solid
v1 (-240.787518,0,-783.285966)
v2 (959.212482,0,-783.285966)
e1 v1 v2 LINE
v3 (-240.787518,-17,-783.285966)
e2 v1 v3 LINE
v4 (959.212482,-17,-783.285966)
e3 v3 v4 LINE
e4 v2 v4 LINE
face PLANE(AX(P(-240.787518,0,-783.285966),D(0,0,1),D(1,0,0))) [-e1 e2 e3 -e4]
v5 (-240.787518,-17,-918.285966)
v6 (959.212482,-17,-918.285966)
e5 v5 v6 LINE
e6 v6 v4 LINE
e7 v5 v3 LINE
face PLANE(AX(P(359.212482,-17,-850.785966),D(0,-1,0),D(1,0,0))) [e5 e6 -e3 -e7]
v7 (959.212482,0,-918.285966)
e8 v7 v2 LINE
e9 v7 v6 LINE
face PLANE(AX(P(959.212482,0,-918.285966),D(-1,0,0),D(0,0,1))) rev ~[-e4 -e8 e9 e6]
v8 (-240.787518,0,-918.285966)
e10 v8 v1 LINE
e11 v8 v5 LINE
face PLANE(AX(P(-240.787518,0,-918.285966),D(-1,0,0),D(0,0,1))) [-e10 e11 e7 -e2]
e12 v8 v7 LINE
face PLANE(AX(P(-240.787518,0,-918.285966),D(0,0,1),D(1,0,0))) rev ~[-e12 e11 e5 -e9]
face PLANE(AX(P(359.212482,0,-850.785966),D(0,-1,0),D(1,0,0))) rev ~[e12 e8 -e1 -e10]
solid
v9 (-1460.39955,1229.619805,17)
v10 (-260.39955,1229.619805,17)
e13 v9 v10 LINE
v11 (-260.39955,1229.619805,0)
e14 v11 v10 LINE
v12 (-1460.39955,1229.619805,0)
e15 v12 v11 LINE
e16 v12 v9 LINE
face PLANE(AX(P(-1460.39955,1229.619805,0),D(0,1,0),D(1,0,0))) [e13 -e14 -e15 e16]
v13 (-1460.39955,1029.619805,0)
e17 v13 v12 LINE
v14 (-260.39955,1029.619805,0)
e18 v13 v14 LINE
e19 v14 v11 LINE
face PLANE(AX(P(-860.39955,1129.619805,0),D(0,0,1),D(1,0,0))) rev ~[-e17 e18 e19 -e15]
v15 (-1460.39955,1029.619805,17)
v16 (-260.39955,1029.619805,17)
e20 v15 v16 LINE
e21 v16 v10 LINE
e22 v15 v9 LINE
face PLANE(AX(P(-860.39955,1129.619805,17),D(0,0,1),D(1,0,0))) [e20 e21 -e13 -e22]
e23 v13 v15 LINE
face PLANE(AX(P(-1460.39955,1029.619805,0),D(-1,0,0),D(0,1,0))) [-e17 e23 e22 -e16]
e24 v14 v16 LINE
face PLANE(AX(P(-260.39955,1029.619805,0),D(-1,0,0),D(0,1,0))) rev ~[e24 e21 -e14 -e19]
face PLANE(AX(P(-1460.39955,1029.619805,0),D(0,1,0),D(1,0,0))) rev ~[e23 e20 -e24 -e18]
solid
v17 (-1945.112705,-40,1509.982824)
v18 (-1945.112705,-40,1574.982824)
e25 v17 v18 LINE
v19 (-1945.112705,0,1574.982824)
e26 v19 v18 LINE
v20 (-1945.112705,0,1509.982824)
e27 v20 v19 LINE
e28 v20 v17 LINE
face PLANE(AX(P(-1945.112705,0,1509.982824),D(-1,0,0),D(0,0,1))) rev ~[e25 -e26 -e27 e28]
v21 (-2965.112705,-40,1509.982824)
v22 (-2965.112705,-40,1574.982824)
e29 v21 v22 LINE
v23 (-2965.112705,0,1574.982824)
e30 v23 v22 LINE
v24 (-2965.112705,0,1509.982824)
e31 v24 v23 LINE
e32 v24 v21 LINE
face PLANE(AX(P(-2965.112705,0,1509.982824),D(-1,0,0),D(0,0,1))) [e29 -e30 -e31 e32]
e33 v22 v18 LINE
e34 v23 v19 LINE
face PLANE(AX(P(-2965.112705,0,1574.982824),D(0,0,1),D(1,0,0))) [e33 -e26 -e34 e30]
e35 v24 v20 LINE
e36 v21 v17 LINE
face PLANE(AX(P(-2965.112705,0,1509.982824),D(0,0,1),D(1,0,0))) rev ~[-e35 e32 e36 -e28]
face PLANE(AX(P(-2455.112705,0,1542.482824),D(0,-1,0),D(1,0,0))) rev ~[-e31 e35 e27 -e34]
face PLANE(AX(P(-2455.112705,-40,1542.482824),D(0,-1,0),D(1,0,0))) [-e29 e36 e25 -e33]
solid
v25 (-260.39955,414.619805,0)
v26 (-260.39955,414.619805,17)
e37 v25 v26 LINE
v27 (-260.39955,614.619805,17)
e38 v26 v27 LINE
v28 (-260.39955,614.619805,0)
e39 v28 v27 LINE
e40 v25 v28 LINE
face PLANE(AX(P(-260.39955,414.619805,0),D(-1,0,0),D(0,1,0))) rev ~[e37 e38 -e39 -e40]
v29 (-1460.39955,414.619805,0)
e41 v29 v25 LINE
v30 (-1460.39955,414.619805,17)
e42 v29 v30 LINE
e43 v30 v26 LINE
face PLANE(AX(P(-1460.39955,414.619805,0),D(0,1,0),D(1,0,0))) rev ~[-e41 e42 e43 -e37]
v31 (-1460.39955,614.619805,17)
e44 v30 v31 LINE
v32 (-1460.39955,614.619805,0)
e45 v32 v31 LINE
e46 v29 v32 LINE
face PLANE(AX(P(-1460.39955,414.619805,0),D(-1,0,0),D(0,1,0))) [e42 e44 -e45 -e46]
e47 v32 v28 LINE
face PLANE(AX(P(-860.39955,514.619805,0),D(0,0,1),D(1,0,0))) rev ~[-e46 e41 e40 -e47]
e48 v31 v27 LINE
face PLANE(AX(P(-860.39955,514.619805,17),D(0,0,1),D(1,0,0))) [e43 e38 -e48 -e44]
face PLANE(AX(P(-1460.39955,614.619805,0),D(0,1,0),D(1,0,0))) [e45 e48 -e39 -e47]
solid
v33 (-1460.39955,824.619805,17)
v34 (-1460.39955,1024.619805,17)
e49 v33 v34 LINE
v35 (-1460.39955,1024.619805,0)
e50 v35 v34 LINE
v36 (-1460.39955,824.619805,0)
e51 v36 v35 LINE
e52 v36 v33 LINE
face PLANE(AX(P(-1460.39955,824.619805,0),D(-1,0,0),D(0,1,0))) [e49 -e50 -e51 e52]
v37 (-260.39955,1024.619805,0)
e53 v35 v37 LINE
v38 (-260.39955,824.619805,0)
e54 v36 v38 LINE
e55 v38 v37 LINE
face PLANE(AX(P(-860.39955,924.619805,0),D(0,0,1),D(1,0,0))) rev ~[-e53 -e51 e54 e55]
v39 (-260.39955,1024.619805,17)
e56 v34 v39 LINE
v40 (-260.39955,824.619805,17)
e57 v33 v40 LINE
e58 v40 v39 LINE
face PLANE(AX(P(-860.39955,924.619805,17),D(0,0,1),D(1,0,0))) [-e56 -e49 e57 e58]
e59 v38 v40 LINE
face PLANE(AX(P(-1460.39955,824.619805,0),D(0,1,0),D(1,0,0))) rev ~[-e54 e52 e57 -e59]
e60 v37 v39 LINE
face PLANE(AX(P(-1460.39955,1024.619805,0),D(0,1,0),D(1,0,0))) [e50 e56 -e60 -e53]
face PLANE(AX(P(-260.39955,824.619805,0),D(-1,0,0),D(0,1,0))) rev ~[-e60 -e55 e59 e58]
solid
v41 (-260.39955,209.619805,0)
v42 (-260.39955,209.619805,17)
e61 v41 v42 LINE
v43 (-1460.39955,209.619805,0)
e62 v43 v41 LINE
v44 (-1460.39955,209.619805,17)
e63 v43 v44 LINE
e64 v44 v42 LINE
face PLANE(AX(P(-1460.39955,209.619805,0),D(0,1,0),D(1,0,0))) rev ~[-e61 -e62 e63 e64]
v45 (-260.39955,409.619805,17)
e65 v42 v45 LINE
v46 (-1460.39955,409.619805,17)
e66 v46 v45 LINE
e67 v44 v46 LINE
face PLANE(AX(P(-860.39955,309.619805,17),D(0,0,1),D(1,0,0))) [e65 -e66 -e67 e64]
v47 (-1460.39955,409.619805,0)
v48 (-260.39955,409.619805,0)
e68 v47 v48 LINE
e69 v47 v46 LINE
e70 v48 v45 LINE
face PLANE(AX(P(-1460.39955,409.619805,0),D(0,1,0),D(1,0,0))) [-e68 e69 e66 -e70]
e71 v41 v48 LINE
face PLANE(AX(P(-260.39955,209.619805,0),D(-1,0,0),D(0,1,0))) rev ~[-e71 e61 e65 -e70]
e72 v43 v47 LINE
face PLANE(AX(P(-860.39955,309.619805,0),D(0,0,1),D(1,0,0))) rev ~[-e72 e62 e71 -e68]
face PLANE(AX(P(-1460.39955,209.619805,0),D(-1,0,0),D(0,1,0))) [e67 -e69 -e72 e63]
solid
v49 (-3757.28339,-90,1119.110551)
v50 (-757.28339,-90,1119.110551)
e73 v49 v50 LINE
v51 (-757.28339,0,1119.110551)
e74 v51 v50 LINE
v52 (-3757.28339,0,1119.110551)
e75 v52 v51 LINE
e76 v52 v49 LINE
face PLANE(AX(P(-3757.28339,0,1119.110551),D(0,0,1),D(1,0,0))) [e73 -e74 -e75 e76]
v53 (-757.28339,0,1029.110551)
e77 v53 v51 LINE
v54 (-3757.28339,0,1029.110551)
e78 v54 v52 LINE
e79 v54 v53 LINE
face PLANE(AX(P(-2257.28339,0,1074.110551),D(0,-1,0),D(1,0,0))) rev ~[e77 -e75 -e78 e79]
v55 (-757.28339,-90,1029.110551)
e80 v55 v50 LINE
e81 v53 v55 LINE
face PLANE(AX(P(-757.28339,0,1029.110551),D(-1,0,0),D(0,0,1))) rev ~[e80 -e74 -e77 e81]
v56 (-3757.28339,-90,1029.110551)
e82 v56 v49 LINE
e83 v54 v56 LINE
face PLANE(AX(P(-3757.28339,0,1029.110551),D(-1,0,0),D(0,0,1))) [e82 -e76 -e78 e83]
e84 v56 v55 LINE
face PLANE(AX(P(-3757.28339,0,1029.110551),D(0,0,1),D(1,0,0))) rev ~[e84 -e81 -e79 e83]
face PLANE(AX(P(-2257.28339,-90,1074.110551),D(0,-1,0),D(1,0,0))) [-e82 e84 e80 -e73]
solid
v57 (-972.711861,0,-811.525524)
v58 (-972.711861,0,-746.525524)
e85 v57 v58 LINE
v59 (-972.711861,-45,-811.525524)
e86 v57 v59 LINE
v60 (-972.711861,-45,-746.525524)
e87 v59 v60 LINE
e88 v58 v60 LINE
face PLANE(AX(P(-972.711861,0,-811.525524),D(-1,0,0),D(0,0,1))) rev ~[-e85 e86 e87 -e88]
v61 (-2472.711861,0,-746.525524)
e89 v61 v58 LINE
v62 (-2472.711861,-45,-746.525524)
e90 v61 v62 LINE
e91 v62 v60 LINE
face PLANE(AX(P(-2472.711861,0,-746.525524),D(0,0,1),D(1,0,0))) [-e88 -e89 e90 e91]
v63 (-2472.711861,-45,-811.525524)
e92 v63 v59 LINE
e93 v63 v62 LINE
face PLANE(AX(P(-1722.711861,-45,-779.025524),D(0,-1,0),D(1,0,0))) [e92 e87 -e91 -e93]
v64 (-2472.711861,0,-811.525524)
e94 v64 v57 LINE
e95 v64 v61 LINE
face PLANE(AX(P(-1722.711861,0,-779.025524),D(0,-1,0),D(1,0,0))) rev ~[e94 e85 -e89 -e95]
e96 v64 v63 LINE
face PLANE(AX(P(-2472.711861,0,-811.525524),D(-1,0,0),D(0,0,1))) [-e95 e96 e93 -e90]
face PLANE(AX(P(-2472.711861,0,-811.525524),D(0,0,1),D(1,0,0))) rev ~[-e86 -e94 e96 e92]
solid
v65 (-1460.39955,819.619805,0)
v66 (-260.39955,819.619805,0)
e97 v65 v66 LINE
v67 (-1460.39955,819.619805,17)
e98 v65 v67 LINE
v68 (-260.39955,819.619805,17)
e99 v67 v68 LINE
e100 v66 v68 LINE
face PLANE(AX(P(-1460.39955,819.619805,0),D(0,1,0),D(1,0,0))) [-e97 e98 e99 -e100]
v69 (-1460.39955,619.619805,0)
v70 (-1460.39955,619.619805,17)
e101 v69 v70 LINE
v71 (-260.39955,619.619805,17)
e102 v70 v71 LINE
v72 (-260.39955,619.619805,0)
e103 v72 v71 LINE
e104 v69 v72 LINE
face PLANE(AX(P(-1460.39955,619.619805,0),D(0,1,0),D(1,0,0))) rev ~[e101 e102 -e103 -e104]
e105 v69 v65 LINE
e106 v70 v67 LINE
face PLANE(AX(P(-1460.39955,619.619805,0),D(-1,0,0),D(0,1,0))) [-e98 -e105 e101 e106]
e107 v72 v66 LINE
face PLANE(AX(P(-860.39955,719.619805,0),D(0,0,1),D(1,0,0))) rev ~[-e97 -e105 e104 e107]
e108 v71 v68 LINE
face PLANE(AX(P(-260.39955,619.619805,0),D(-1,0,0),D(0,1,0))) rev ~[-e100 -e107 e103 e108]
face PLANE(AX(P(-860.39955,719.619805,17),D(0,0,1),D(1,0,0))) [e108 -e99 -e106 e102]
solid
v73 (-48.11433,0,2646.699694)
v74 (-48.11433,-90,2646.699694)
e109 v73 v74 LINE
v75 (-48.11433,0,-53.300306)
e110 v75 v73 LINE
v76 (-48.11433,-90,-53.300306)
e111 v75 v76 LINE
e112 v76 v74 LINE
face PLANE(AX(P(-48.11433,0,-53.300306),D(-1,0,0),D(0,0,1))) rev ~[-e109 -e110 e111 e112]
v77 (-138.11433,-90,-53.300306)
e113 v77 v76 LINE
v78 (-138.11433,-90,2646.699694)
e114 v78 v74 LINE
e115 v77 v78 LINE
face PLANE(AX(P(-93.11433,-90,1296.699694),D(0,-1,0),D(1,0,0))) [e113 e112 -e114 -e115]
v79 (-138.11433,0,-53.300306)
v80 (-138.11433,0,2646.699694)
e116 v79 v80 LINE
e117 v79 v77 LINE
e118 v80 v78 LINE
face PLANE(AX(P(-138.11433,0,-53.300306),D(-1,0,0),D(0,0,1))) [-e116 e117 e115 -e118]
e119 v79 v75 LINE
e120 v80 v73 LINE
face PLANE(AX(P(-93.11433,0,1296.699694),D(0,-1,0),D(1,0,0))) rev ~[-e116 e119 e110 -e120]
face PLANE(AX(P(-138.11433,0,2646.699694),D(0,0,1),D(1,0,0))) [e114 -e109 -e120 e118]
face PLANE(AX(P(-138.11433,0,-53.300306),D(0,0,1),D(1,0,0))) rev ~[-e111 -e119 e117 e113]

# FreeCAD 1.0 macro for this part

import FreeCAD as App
import Part
import Sketcher
Q = App.Units.Quantity

doc = App.newDocument("Part")
body = doc.addObject("PartDesign::Body", "Body")

sketch1 = body.newObject("Sketcher::SketchObject", "Sketch")
sketch1.AttachmentSupport = (doc.getObject("XZ_Plane"), [""])
sketch1.MapMode = "FlatFace"
sketch1.addGeometry([
    Part.LineSegment(App.Vector(-138, 2647, 0), App.Vector(-138, -53, 0)),
    Part.LineSegment(App.Vector(-138, -53, 0), App.Vector(-48, -53, 0)),
    Part.LineSegment(App.Vector(-48, -53, 0), App.Vector(-48, 2647, 0)),
    Part.LineSegment(App.Vector(-48, 2647, 0), App.Vector(-138, 2647, 0)),
], False)
sketch1.addConstraint([
    Sketcher.Constraint("Coincident", 0, 2, 1, 1),
    Sketcher.Constraint("Coincident", 1, 2, 2, 1),
    Sketcher.Constraint("Coincident", 2, 2, 3, 1),
    Sketcher.Constraint("Coincident", 3, 2, 0, 1),
    Sketcher.Constraint("Vertical", 0),
    Sketcher.Constraint("Horizontal", 1),
    Sketcher.Constraint("Vertical", 2),
    Sketcher.Constraint("Horizontal", 3),
    Sketcher.Constraint("DistanceX", 1, 1, 1, 2, Q("90 mm")),
    Sketcher.Constraint("DistanceY", 0, 2, 0, 1, Q("2700 mm")),
    Sketcher.Constraint("DistanceX", 0, 2, -1, 1, Q("138.11433 mm")),
    Sketcher.Constraint("DistanceY", 0, 2, -1, 1, Q("53.300306 mm")),
])
pad1 = body.newObject("PartDesign::Pad", "Pad")
pad1.Profile = sketch1
pad1.Length = 90
body2 = doc.addObject("PartDesign::Body", "Body001")

sketch2 = body2.newObject("Sketcher::SketchObject", "Sketch001")
sketch2.AttachmentSupport = (doc.getObject("XZ_Plane001"), [""])
sketch2.MapMode = "FlatFace"
sketch2.addGeometry([
    Part.LineSegment(App.Vector(-3757, 1119, 0), App.Vector(-3757, 1029, 0)),
    Part.LineSegment(App.Vector(-3757, 1029, 0), App.Vector(-757, 1029, 0)),
    Part.LineSegment(App.Vector(-757, 1029, 0), App.Vector(-757, 1119, 0)),
    Part.LineSegment(App.Vector(-757, 1119, 0), App.Vector(-3757, 1119, 0)),
], False)
sketch2.addConstraint([
    Sketcher.Constraint("Coincident", 0, 2, 1, 1),
    Sketcher.Constraint("Coincident", 1, 2, 2, 1),
    Sketcher.Constraint("Coincident", 2, 2, 3, 1),
    Sketcher.Constraint("Coincident", 3, 2, 0, 1),
    Sketcher.Constraint("Vertical", 0),
    Sketcher.Constraint("Horizontal", 1),
    Sketcher.Constraint("Vertical", 2),
    Sketcher.Constraint("Horizontal", 3),
    Sketcher.Constraint("DistanceX", 1, 1, 1, 2, Q("3000 mm")),
    Sketcher.Constraint("DistanceY", 0, 2, 0, 1, Q("90 mm")),
    Sketcher.Constraint("DistanceX", 0, 2, -1, 1, Q("3757.28339 mm")),
    Sketcher.Constraint("DistanceY", -1, 1, 0, 2, Q("1029.110551 mm")),
])
pad2 = body2.newObject("PartDesign::Pad", "Pad001")
pad2.Profile = sketch2
pad2.Length = 90
body3 = doc.addObject("PartDesign::Body", "Body002")

sketch3 = body3.newObject("Sketcher::SketchObject", "Sketch002")
sketch3.AttachmentSupport = (doc.getObject("XZ_Plane002"), [""])
sketch3.MapMode = "FlatFace"
sketch3.addGeometry([
    Part.LineSegment(App.Vector(-2473, -747, 0), App.Vector(-2473, -812, 0)),
    Part.LineSegment(App.Vector(-2473, -812, 0), App.Vector(-973, -812, 0)),
    Part.LineSegment(App.Vector(-973, -812, 0), App.Vector(-973, -747, 0)),
    Part.LineSegment(App.Vector(-973, -747, 0), App.Vector(-2473, -747, 0)),
], False)
sketch3.addConstraint([
    Sketcher.Constraint("Coincident", 0, 2, 1, 1),
    Sketcher.Constraint("Coincident", 1, 2, 2, 1),
    Sketcher.Constraint("Coincident", 2, 2, 3, 1),
    Sketcher.Constraint("Coincident", 3, 2, 0, 1),
    Sketcher.Constraint("Vertical", 0),
    Sketcher.Constraint("Horizontal", 1),
    Sketcher.Constraint("Vertical", 2),
    Sketcher.Constraint("Horizontal", 3),
    Sketcher.Constraint("DistanceX", 1, 1, 1, 2, Q("1500 mm")),
    Sketcher.Constraint("DistanceY", 0, 2, 0, 1, Q("65 mm")),
    Sketcher.Constraint("DistanceX", 0, 2, -1, 1, Q("2472.711861 mm")),
    Sketcher.Constraint("DistanceY", 0, 2, -1, 1, Q("811.525524 mm")),
])
pad3 = body3.newObject("PartDesign::Pad", "Pad002")
pad3.Profile = sketch3
pad3.Length = 45
body4 = doc.addObject("PartDesign::Body", "Body003")

sketch4 = body4.newObject("Sketcher::SketchObject", "Sketch003")
sketch4.AttachmentSupport = (doc.getObject("XZ_Plane003"), [""])
sketch4.MapMode = "FlatFace"
sketch4.addGeometry([
    Part.LineSegment(App.Vector(-241, -783, 0), App.Vector(-241, -918, 0)),
    Part.LineSegment(App.Vector(-241, -918, 0), App.Vector(959, -918, 0)),
    Part.LineSegment(App.Vector(959, -918, 0), App.Vector(959, -783, 0)),
    Part.LineSegment(App.Vector(959, -783, 0), App.Vector(-241, -783, 0)),
], False)
sketch4.addConstraint([
    Sketcher.Constraint("Coincident", 0, 2, 1, 1),
    Sketcher.Constraint("Coincident", 1, 2, 2, 1),
    Sketcher.Constraint("Coincident", 2, 2, 3, 1),
    Sketcher.Constraint("Coincident", 3, 2, 0, 1),
    Sketcher.Constraint("Vertical", 0),
    Sketcher.Constraint("Horizontal", 1),
    Sketcher.Constraint("Vertical", 2),
    Sketcher.Constraint("Horizontal", 3),
    Sketcher.Constraint("DistanceX", 1, 1, 1, 2, Q("1200 mm")),
    Sketcher.Constraint("DistanceY", 0, 2, 0, 1, Q("135 mm")),
    Sketcher.Constraint("DistanceX", 0, 2, -1, 1, Q("240.787518 mm")),
    Sketcher.Constraint("DistanceY", 0, 2, -1, 1, Q("918.285966 mm")),
])
pad4 = body4.newObject("PartDesign::Pad", "Pad003")
pad4.Profile = sketch4
pad4.Length = 17
body5 = doc.addObject("PartDesign::Body", "Body004")

sketch5 = body5.newObject("Sketcher::SketchObject", "Sketch004")
sketch5.AttachmentSupport = (doc.getObject("XZ_Plane004"), [""])
sketch5.MapMode = "FlatFace"
sketch5.addGeometry([
    Part.LineSegment(App.Vector(-2965, 1575, 0), App.Vector(-2965, 1510, 0)),
    Part.LineSegment(App.Vector(-2965, 1510, 0), App.Vector(-1945, 1510, 0)),
    Part.LineSegment(App.Vector(-1945, 1510, 0), App.Vector(-1945, 1575, 0)),
    Part.LineSegment(App.Vector(-1945, 1575, 0), App.Vector(-2965, 1575, 0)),
], False)
sketch5.addConstraint([
    Sketcher.Constraint("Coincident", 0, 2, 1, 1),
    Sketcher.Constraint("Coincident", 1, 2, 2, 1),
    Sketcher.Constraint("Coincident", 2, 2, 3, 1),
    Sketcher.Constraint("Coincident", 3, 2, 0, 1),
    Sketcher.Constraint("Vertical", 0),
    Sketcher.Constraint("Horizontal", 1),
    Sketcher.Constraint("Vertical", 2),
    Sketcher.Constraint("Horizontal", 3),
    Sketcher.Constraint("DistanceX", 1, 1, 1, 2, Q("1020 mm")),
    Sketcher.Constraint("DistanceY", 0, 2, 0, 1, Q("65 mm")),
    Sketcher.Constraint("DistanceX", 0, 2, -1, 1, Q("2965.112705 mm")),
    Sketcher.Constraint("DistanceY", -1, 1, 0, 2, Q("1509.982824 mm")),
])
pad5 = body5.newObject("PartDesign::Pad", "Pad004")
pad5.Profile = sketch5
pad5.Length = 40
body6 = doc.addObject("PartDesign::Body", "Body005")
body6.AllowCompound = True

sketch6 = body6.newObject("Sketcher::SketchObject", "Sketch005")
sketch6.AttachmentSupport = (doc.getObject("XY_Plane005"), [""])
sketch6.MapMode = "FlatFace"
sketch6.addGeometry([
    Part.LineSegment(App.Vector(-1460, 1025, 0), App.Vector(-1460, 825, 0)),
    Part.LineSegment(App.Vector(-1460, 825, 0), App.Vector(-260, 825, 0)),
    Part.LineSegment(App.Vector(-260, 825, 0), App.Vector(-260, 1025, 0)),
    Part.LineSegment(App.Vector(-260, 1025, 0), App.Vector(-1460, 1025, 0)),
    Part.LineSegment(App.Vector(-1460, 1230, 0), App.Vector(-1460, 1030, 0)),
    Part.LineSegment(App.Vector(-1460, 1030, 0), App.Vector(-260, 1030, 0)),
    Part.LineSegment(App.Vector(-260, 1030, 0), App.Vector(-260, 1230, 0)),
    Part.LineSegment(App.Vector(-260, 1230, 0), App.Vector(-1460, 1230, 0)),
    Part.LineSegment(App.Vector(-1460, 820, 0), App.Vector(-1460, 620, 0)),
    Part.LineSegment(App.Vector(-1460, 620, 0), App.Vector(-260, 620, 0)),
    Part.LineSegment(App.Vector(-260, 620, 0), App.Vector(-260, 820, 0)),
    Part.LineSegment(App.Vector(-260, 820, 0), App.Vector(-1460, 820, 0)),
    Part.LineSegment(App.Vector(-1460, 615, 0), App.Vector(-1460, 415, 0)),
    Part.LineSegment(App.Vector(-1460, 415, 0), App.Vector(-260, 415, 0)),
    Part.LineSegment(App.Vector(-260, 415, 0), App.Vector(-260, 615, 0)),
    Part.LineSegment(App.Vector(-260, 615, 0), App.Vector(-1460, 615, 0)),
    Part.LineSegment(App.Vector(-1460, 410, 0), App.Vector(-1460, 210, 0)),
    Part.LineSegment(App.Vector(-1460, 210, 0), App.Vector(-260, 210, 0)),
    Part.LineSegment(App.Vector(-260, 210, 0), App.Vector(-260, 410, 0)),
    Part.LineSegment(App.Vector(-260, 410, 0), App.Vector(-1460, 410, 0)),
], False)
sketch6.addConstraint([
    Sketcher.Constraint("Coincident", 0, 2, 1, 1),
    Sketcher.Constraint("Coincident", 1, 2, 2, 1),
    Sketcher.Constraint("Coincident", 2, 2, 3, 1),
    Sketcher.Constraint("Coincident", 3, 2, 0, 1),
    Sketcher.Constraint("Coincident", 4, 2, 5, 1),
    Sketcher.Constraint("Coincident", 5, 2, 6, 1),
    Sketcher.Constraint("Coincident", 6, 2, 7, 1),
    Sketcher.Constraint("Coincident", 7, 2, 4, 1),
    Sketcher.Constraint("Coincident", 8, 2, 9, 1),
    Sketcher.Constraint("Coincident", 9, 2, 10, 1),
    Sketcher.Constraint("Coincident", 10, 2, 11, 1),
    Sketcher.Constraint("Coincident", 11, 2, 8, 1),
    Sketcher.Constraint("Coincident", 12, 2, 13, 1),
    Sketcher.Constraint("Coincident", 13, 2, 14, 1),
    Sketcher.Constraint("Coincident", 14, 2, 15, 1),
    Sketcher.Constraint("Coincident", 15, 2, 12, 1),
    Sketcher.Constraint("Coincident", 16, 2, 17, 1),
    Sketcher.Constraint("Coincident", 17, 2, 18, 1),
    Sketcher.Constraint("Coincident", 18, 2, 19, 1),
    Sketcher.Constraint("Coincident", 19, 2, 16, 1),
    Sketcher.Constraint("Vertical", 0),
    Sketcher.Constraint("Horizontal", 1),
    Sketcher.Constraint("Vertical", 2),
    Sketcher.Constraint("Horizontal", 3),
    Sketcher.Constraint("Vertical", 4),
    Sketcher.Constraint("Horizontal", 5),
    Sketcher.Constraint("Vertical", 6),
    Sketcher.Constraint("Horizontal", 7),
    Sketcher.Constraint("Vertical", 8),
    Sketcher.Constraint("Horizontal", 9),
    Sketcher.Constraint("Vertical", 10),
    Sketcher.Constraint("Horizontal", 11),
    Sketcher.Constraint("Vertical", 12),
    Sketcher.Constraint("Horizontal", 13),
    Sketcher.Constraint("Vertical", 14),
    Sketcher.Constraint("Horizontal", 15),
    Sketcher.Constraint("Vertical", 16),
    Sketcher.Constraint("Horizontal", 17),
    Sketcher.Constraint("Vertical", 18),
    Sketcher.Constraint("Horizontal", 19),
    Sketcher.Constraint("Vertical", 3, 2, 4, 2),
    Sketcher.Constraint("Vertical", 2, 2, 5, 2),
    Sketcher.Constraint("Vertical", 7, 2, 8, 2),
    Sketcher.Constraint("Vertical", 6, 2, 9, 2),
    Sketcher.Constraint("Vertical", 11, 2, 12, 2),
    Sketcher.Constraint("Vertical", 10, 2, 13, 2),
    Sketcher.Constraint("Vertical", 15, 2, 16, 2),
    Sketcher.Constraint("Vertical", 14, 2, 17, 2),
    Sketcher.Constraint("Equal", 2, 4),
    Sketcher.Constraint("Equal", 6, 8),
    Sketcher.Constraint("Equal", 10, 12),
    Sketcher.Constraint("Equal", 14, 16),
    Sketcher.Constraint("DistanceX", 1, 1, 1, 2, Q("1200 mm")),
    Sketcher.Constraint("DistanceY", 0, 2, 0, 1, Q("200 mm")),
    Sketcher.Constraint("DistanceY", 3, 2, 4, 2, Q("5 mm")),
    Sketcher.Constraint("DistanceY", 8, 2, 0, 2, Q("205 mm")),
    Sketcher.Constraint("DistanceY", 12, 2, 8, 2, Q("205 mm")),
    Sketcher.Constraint("DistanceY", 16, 2, 12, 2, Q("205 mm")),
    Sketcher.Constraint("DistanceX", 0, 2, -1, 1, Q("1460.39955 mm")),
    Sketcher.Constraint("DistanceY", -1, 1, 0, 2, Q("824.619805 mm")),
])
pad6 = body6.newObject("PartDesign::Pad", "Pad005")
pad6.Profile = sketch6
pad6.Length = 17

doc.recompute()
